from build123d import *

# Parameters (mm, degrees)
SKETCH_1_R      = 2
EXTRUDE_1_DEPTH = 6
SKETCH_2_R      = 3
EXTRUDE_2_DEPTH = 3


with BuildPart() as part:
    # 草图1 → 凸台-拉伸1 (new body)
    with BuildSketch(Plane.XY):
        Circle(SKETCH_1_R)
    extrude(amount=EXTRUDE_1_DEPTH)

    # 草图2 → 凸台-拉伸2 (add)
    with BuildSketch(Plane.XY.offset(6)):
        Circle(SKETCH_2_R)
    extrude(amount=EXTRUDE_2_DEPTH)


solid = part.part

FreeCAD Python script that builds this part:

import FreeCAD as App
import Part
import Sketcher

V = App.Vector
Q = App.Units.Quantity

doc = App.newDocument("Part")
body = doc.addObject("PartDesign::Body", "Body")

# Sketch on XY plane
sketch1 = body.newObject("Sketcher::SketchObject", "Sketch")
sketch1.AttachmentSupport = (doc.getObject("XY_Plane"), [""])
sketch1.MapMode = "FlatFace"
sketch1.addGeometry(Part.Circle(V(0, 0, 0), V(0, 0, 1), 2), False)
sketch1.addConstraint([
    Sketcher.Constraint("Coincident", 0, 3, -1, 1),
    Sketcher.Constraint("Diameter", 0, Q("4 mm")),
])
pad1 = body.newObject("PartDesign::Pad", "Pad")
pad1.Profile = sketch1
pad1.Length = 6

# Sketch on XY plane
sketch2 = body.newObject("Sketcher::SketchObject", "Sketch001")
sketch2.AttachmentSupport = (doc.getObject("XY_Plane"), [""])
sketch2.MapMode = "FlatFace"
sketch2.AttachmentOffset = App.Placement(V(0, 0, 6), App.Rotation())
sketch2.addGeometry(Part.Circle(V(0, 0, 0), V(0, 0, 1), 3), False)
sketch2.addConstraint([
    Sketcher.Constraint("Coincident", 0, 3, -1, 1),
    Sketcher.Constraint("Diameter", 0, Q("6 mm")),
])
pad2 = body.newObject("PartDesign::Pad", "Pad001")
pad2.Profile = sketch2
pad2.Length = 3

doc.recompute()
